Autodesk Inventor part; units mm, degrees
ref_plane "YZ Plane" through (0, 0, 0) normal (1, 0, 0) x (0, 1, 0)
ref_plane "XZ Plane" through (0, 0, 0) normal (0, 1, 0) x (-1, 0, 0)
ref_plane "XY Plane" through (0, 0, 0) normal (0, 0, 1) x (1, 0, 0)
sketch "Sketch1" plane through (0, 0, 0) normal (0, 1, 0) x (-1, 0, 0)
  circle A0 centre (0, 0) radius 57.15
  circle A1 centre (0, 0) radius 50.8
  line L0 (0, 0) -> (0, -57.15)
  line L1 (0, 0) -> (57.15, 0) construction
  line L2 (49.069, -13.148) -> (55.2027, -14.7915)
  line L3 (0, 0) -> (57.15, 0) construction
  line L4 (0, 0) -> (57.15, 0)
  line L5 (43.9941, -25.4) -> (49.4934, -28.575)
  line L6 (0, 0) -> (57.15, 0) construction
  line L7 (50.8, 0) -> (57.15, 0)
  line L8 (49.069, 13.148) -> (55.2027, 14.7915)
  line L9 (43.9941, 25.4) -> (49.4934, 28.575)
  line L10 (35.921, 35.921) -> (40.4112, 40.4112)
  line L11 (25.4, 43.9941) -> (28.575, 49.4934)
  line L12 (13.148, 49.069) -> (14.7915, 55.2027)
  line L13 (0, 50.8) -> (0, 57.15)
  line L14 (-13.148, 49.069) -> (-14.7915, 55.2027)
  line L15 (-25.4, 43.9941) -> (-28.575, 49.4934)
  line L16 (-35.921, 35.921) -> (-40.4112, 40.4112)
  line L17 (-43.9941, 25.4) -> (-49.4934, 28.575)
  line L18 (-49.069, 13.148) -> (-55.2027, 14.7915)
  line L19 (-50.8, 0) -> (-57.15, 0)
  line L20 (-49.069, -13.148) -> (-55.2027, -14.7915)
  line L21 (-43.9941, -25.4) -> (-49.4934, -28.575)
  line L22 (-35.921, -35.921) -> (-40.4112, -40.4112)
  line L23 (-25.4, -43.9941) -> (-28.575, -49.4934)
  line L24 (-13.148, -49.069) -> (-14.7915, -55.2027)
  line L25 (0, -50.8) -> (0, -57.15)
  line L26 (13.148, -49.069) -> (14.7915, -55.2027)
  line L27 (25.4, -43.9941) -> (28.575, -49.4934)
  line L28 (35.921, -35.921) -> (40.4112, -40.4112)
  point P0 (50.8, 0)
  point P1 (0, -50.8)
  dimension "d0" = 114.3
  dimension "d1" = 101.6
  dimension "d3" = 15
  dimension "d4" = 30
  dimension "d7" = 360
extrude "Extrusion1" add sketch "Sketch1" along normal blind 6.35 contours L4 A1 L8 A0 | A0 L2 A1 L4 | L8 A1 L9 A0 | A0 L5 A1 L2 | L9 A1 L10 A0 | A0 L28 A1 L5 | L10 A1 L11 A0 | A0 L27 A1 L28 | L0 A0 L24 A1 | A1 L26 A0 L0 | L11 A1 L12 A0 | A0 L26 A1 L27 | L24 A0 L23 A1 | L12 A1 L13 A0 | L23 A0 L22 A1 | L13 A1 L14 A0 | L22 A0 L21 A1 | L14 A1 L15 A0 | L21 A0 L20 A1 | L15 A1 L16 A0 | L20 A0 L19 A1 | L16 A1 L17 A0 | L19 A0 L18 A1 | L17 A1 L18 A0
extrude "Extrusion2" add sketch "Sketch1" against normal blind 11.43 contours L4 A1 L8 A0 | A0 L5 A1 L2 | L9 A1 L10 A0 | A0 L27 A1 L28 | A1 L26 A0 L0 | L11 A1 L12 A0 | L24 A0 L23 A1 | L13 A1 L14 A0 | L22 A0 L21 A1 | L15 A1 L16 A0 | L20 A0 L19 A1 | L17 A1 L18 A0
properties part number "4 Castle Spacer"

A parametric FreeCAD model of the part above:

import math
import FreeCAD as App
import Part
import Sketcher
Q = App.Units.Quantity

doc = App.newDocument("Part")
params = doc.addObject("Spreadsheet::Sheet", "Params")
for row, (alias, value) in enumerate([
    ("sketch1_diameter", "4 in"),
    ("sketch1_diameter2", "4.5 in"),
    ("pad1_length", "0.25 in"),
    ("sketch2_radius", "2 in"),
    ("sketch2_radius2", "2.25 in"),
    ("pad2_length", "0.45 in"),
], start=1):
    params.set(f"A{row}", alias)
    params.set(f"B{row}", "=" + value)
    params.setAlias(f"B{row}", alias)

body = doc.addObject("PartDesign::Body", "Body")

sketch1 = body.newObject("Sketcher::SketchObject", "Sketch")
sketch1.AttachmentSupport = (doc.getObject("XZ_Plane"), [""])
sketch1.MapMode = "FlatFace"
sketch1.addGeometry([
    Part.Circle(App.Vector(0, 0, 0), App.Vector(0, 0, 1), 57),
    Part.Circle(App.Vector(0, 0, 0), App.Vector(0, 0, 1), 51),
], False)
sketch1.addConstraint([
    Sketcher.Constraint("Coincident", 0, 3, -1, 1),
    Sketcher.Constraint("Coincident", 1, 3, -1, 1),
    Sketcher.Constraint("Diameter", 1, Q("4 in")),
    Sketcher.Constraint("Diameter", 0, Q("4.5 in")),
])
sketch1.setExpression("Constraints[2]", "Params.sketch1_diameter")
sketch1.setExpression("Constraints[3]", "Params.sketch1_diameter2")
pad1 = body.newObject("PartDesign::Pad", "Pad")
pad1.Profile = sketch1
pad1.setExpression("Length", "Params.pad1_length")
pad1.Reversed = True

sketch2 = body.newObject("Sketcher::SketchObject", "Sketch001")
sketch2.AttachmentSupport = (doc.getObject("XZ_Plane"), [""])
sketch2.MapMode = "FlatFace"
sketch2.addGeometry([
    Part.LineSegment(App.Vector(-51, 0, 0), App.Vector(-57, 0, 0)),
    Part.ArcOfCircle(Part.Circle(App.Vector(0, 0, 0), App.Vector(0, 0, 1), 57), math.radians(165), math.radians(180)),
    Part.LineSegment(App.Vector(-55, 15, 0), App.Vector(-49, 13, 0)),
    Part.ArcOfCircle(Part.Circle(App.Vector(0, 0, 0), App.Vector(0, 0, 1), 51), math.radians(165), math.radians(180)),
    Part.ArcOfCircle(Part.Circle(App.Vector(0, 0, 0), App.Vector(0, 0, 1), 57), math.radians(-165), math.radians(-150)),
    Part.LineSegment(App.Vector(-55, -15, 0), App.Vector(-49, -13, 0)),
    Part.ArcOfCircle(Part.Circle(App.Vector(0, 0, 0), App.Vector(0, 0, 1), 51), math.radians(-165), math.radians(-150)),
    Part.LineSegment(App.Vector(-44, -25, 0), App.Vector(-49, -29, 0)),
    Part.LineSegment(App.Vector(-44, 25, 0), App.Vector(-49, 29, 0)),
    Part.ArcOfCircle(Part.Circle(App.Vector(0, 0, 0), App.Vector(0, 0, 1), 57), math.radians(135), math.radians(150)),
    Part.LineSegment(App.Vector(-40, 40, 0), App.Vector(-36, 36, 0)),
    Part.ArcOfCircle(Part.Circle(App.Vector(0, 0, 0), App.Vector(0, 0, 1), 51), math.radians(135), math.radians(150)),
    Part.ArcOfCircle(Part.Circle(App.Vector(0, 0, 0), App.Vector(0, 0, 1), 57), math.radians(-135), math.radians(-120)),
    Part.LineSegment(App.Vector(-40, -40, 0), App.Vector(-36, -36, 0)),
    Part.ArcOfCircle(Part.Circle(App.Vector(0, 0, 0), App.Vector(0, 0, 1), 51), math.radians(-135), math.radians(-120)),
    Part.LineSegment(App.Vector(-25, -44, 0), App.Vector(-29, -49, 0)),
    Part.ArcOfCircle(Part.Circle(App.Vector(0, 0, 0), App.Vector(0, 0, 1), 51), math.radians(-105), math.radians(-90)),
    Part.LineSegment(App.Vector(0, -51, 0), App.Vector(0, -57, 0)),
    Part.ArcOfCircle(Part.Circle(App.Vector(0, 0, 0), App.Vector(0, 0, 1), 57), math.radians(-105), math.radians(-90)),
    Part.LineSegment(App.Vector(-15, -55, 0), App.Vector(-13, -49, 0)),
    Part.LineSegment(App.Vector(-25, 44, 0), App.Vector(-29, 49, 0)),
    Part.ArcOfCircle(Part.Circle(App.Vector(0, 0, 0), App.Vector(0, 0, 1), 57), math.radians(105), math.radians(120)),
    Part.LineSegment(App.Vector(-15, 55, 0), App.Vector(-13, 49, 0)),
    Part.ArcOfCircle(Part.Circle(App.Vector(0, 0, 0), App.Vector(0, 0, 1), 51), math.radians(105), math.radians(120)),
    Part.LineSegment(App.Vector(15, -55, 0), App.Vector(13, -49, 0)),
    Part.ArcOfCircle(Part.Circle(App.Vector(0, 0, 0), App.Vector(0, 0, 1), 51), math.radians(-75), math.radians(-60)),
    Part.LineSegment(App.Vector(25, -44, 0), App.Vector(29, -49, 0)),
    Part.ArcOfCircle(Part.Circle(App.Vector(0, 0, 0), App.Vector(0, 0, 1), 57), math.radians(-75), math.radians(-60)),
    Part.LineSegment(App.Vector(0, 51, 0), App.Vector(0, 57, 0)),
    Part.ArcOfCircle(Part.Circle(App.Vector(0, 0, 0), App.Vector(0, 0, 1), 57), math.radians(75), math.radians(90)),
    Part.LineSegment(App.Vector(15, 55, 0), App.Vector(13, 49, 0)),
    Part.ArcOfCircle(Part.Circle(App.Vector(0, 0, 0), App.Vector(0, 0, 1), 51), math.radians(75), math.radians(90)),
    Part.LineSegment(App.Vector(40, -40, 0), App.Vector(36, -36, 0)),
    Part.ArcOfCircle(Part.Circle(App.Vector(0, 0, 0), App.Vector(0, 0, 1), 51), math.radians(-45), math.radians(-30)),
    Part.LineSegment(App.Vector(44, -25, 0), App.Vector(49, -29, 0)),
    Part.ArcOfCircle(Part.Circle(App.Vector(0, 0, 0), App.Vector(0, 0, 1), 57), math.radians(-45), math.radians(-30)),
    Part.LineSegment(App.Vector(25, 44, 0), App.Vector(29, 49, 0)),
    Part.ArcOfCircle(Part.Circle(App.Vector(0, 0, 0), App.Vector(0, 0, 1), 57), math.radians(45), math.radians(60)),
    Part.LineSegment(App.Vector(40, 40, 0), App.Vector(36, 36, 0)),
    Part.ArcOfCircle(Part.Circle(App.Vector(0, 0, 0), App.Vector(0, 0, 1), 51), math.radians(45), math.radians(60)),
    Part.LineSegment(App.Vector(55, -15, 0), App.Vector(49, -13, 0)),
    Part.ArcOfCircle(Part.Circle(App.Vector(0, 0, 0), App.Vector(0, 0, 1), 51), math.radians(-15), math.radians(0)),
    Part.LineSegment(App.Vector(51, 0, 0), App.Vector(57, 0, 0)),
    Part.ArcOfCircle(Part.Circle(App.Vector(0, 0, 0), App.Vector(0, 0, 1), 57), math.radians(-15), math.radians(0)),
    Part.LineSegment(App.Vector(44, 25, 0), App.Vector(49, 29, 0)),
    Part.ArcOfCircle(Part.Circle(App.Vector(0, 0, 0), App.Vector(0, 0, 1), 57), math.radians(15), math.radians(30)),
    Part.LineSegment(App.Vector(55, 15, 0), App.Vector(49, 13, 0)),
    Part.ArcOfCircle(Part.Circle(App.Vector(0, 0, 0), App.Vector(0, 0, 1), 51), math.radians(15), math.radians(30)),
], False)
sketch2.addConstraint([
    Sketcher.Constraint("Coincident", 0, 2, 1, 2),
    Sketcher.Constraint("Coincident", 1, 1, 2, 1),
    Sketcher.Constraint("Coincident", 2, 2, 3, 1),
    Sketcher.Constraint("Coincident", 3, 2, 0, 1),
    Sketcher.Constraint("Coincident", 4, 1, 5, 1),
    Sketcher.Constraint("Coincident", 5, 2, 6, 1),
    Sketcher.Constraint("Coincident", 6, 2, 7, 1),
    Sketcher.Constraint("Coincident", 7, 2, 4, 2),
    Sketcher.Constraint("Coincident", 8, 2, 9, 2),
    Sketcher.Constraint("Coincident", 9, 1, 10, 1),
    Sketcher.Constraint("Coincident", 10, 2, 11, 1),
    Sketcher.Constraint("Coincident", 11, 2, 8, 1),
    Sketcher.Constraint("Coincident", 12, 1, 13, 1),
    Sketcher.Constraint("Coincident", 13, 2, 14, 1),
    Sketcher.Constraint("Coincident", 14, 2, 15, 1),
    Sketcher.Constraint("Coincident", 15, 2, 12, 2),
    Sketcher.Constraint("Coincident", 16, 2, 17, 1),
    Sketcher.Constraint("Coincident", 17, 2, 18, 2),
    Sketcher.Constraint("Coincident", 18, 1, 19, 1),
    Sketcher.Constraint("Coincident", 19, 2, 16, 1),
    Sketcher.Constraint("Coincident", 20, 2, 21, 2),
    Sketcher.Constraint("Coincident", 21, 1, 22, 1),
    Sketcher.Constraint("Coincident", 22, 2, 23, 1),
    Sketcher.Constraint("Coincident", 23, 2, 20, 1),
    Sketcher.Constraint("Coincident", 24, 2, 25, 1),
    Sketcher.Constraint("Coincident", 25, 2, 26, 1),
    Sketcher.Constraint("Coincident", 26, 2, 27, 2),
    Sketcher.Constraint("Coincident", 27, 1, 24, 1),
    Sketcher.Constraint("Coincident", 28, 2, 29, 2),
    Sketcher.Constraint("Coincident", 29, 1, 30, 1),
    Sketcher.Constraint("Coincident", 30, 2, 31, 1),
    Sketcher.Constraint("Coincident", 31, 2, 28, 1),
    Sketcher.Constraint("Coincident", 32, 2, 33, 1),
    Sketcher.Constraint("Coincident", 33, 2, 34, 1),
    Sketcher.Constraint("Coincident", 34, 2, 35, 2),
    Sketcher.Constraint("Coincident", 35, 1, 32, 1),
    Sketcher.Constraint("Coincident", 36, 2, 37, 2),
    Sketcher.Constraint("Coincident", 37, 1, 38, 1),
    Sketcher.Constraint("Coincident", 38, 2, 39, 1),
    Sketcher.Constraint("Coincident", 39, 2, 36, 1),
    Sketcher.Constraint("Coincident", 40, 2, 41, 1),
    Sketcher.Constraint("Coincident", 41, 2, 42, 1),
    Sketcher.Constraint("Coincident", 42, 2, 43, 2),
    Sketcher.Constraint("Coincident", 43, 1, 40, 1),
    Sketcher.Constraint("Coincident", 44, 2, 45, 2),
    Sketcher.Constraint("Coincident", 45, 1, 46, 1),
    Sketcher.Constraint("Coincident", 46, 2, 47, 1),
    Sketcher.Constraint("Coincident", 47, 2, 44, 1),
    Sketcher.Constraint("Horizontal", 0),
    Sketcher.Constraint("Vertical", 17),
    Sketcher.Constraint("Vertical", 28),
    Sketcher.Constraint("Horizontal", 42),
    Sketcher.Constraint("Coincident", 1, 3, -1, 1),
    Sketcher.Constraint("Coincident", 3, 3, -1, 1),
    Sketcher.Constraint("Coincident", 4, 3, -1, 1),
    Sketcher.Constraint("Coincident", 6, 3, -1, 1),
    Sketcher.Constraint("Coincident", 9, 3, -1, 1),
    Sketcher.Constraint("Coincident", 11, 3, -1, 1),
    Sketcher.Constraint("Coincident", 12, 3, -1, 1),
    Sketcher.Constraint("Coincident", 14, 3, -1, 1),
    Sketcher.Constraint("Coincident", 16, 3, -1, 1),
    Sketcher.Constraint("Coincident", 18, 3, -1, 1),
    Sketcher.Constraint("Coincident", 21, 3, -1, 1),
    Sketcher.Constraint("Coincident", 23, 3, -1, 1),
    Sketcher.Constraint("Coincident", 25, 3, -1, 1),
    Sketcher.Constraint("Coincident", 27, 3, -1, 1),
    Sketcher.Constraint("Coincident", 29, 3, -1, 1),
    Sketcher.Constraint("Coincident", 31, 3, -1, 1),
    Sketcher.Constraint("Coincident", 33, 3, -1, 1),
    Sketcher.Constraint("Coincident", 35, 3, -1, 1),
    Sketcher.Constraint("Coincident", 37, 3, -1, 1),
    Sketcher.Constraint("Coincident", 39, 3, -1, 1),
    Sketcher.Constraint("Coincident", 41, 3, -1, 1),
    Sketcher.Constraint("Coincident", 43, 3, -1, 1),
    Sketcher.Constraint("Coincident", 45, 3, -1, 1),
    Sketcher.Constraint("Coincident", 47, 3, -1, 1),
    Sketcher.Constraint("Equal", 1, 4),
    Sketcher.Constraint("Equal", 3, 6),
    Sketcher.Constraint("Equal", 4, 9),
    Sketcher.Constraint("Equal", 6, 11),
    Sketcher.Constraint("Equal", 9, 12),
    Sketcher.Constraint("Equal", 11, 14),
    Sketcher.Constraint("Equal", 14, 16),
    Sketcher.Constraint("Equal", 12, 18),
    Sketcher.Constraint("Equal", 18, 21),
    Sketcher.Constraint("Equal", 16, 23),
    Sketcher.Constraint("Equal", 23, 25),
    Sketcher.Constraint("Equal", 21, 27),
    Sketcher.Constraint("Equal", 27, 29),
    Sketcher.Constraint("Equal", 25, 31),
    Sketcher.Constraint("Equal", 31, 33),
    Sketcher.Constraint("Equal", 29, 35),
    Sketcher.Constraint("Equal", 35, 37),
    Sketcher.Constraint("Equal", 33, 39),
    Sketcher.Constraint("Equal", 39, 41),
    Sketcher.Constraint("Equal", 37, 43),
    Sketcher.Constraint("Equal", 43, 45),
    Sketcher.Constraint("Equal", 41, 47),
    Sketcher.Constraint("PointOnObject", 0, 2, -1),
    Sketcher.Constraint("PointOnObject", 16, 2, -2),
    Sketcher.Constraint("PointOnObject", 28, 2, -2),
    Sketcher.Constraint("PointOnObject", 41, 2, -1),
    Sketcher.Constraint("Perpendicular", 10, 13),
    Sketcher.Constraint("Perpendicular", 8, 15),
    Sketcher.Constraint("Perpendicular", 2, 19),
    Sketcher.Constraint("Perpendicular", 7, 20),
    Sketcher.Constraint("Perpendicular", 5, 22),
    Sketcher.Constraint("Parallel", 22, 24),
    Sketcher.Constraint("Parallel", 20, 26),
    Sketcher.Constraint("Parallel", 19, 30),
    Sketcher.Constraint("Perpendicular", 13, 32),
    Sketcher.Constraint("Perpendicular", 15, 34),
    Sketcher.Constraint("Perpendicular", 34, 36),
    Sketcher.Constraint("Perpendicular", 32, 38),
    Sketcher.Constraint("Perpendicular", 30, 40),
    Sketcher.Constraint("Perpendicular", 26, 44),
    Sketcher.Constraint("Perpendicular", 24, 46),
    Sketcher.Constraint("Horizontal", 19, 2, 24, 2),
    Sketcher.Constraint("Horizontal", 14, 2, 25, 2),
    Sketcher.Constraint("Horizontal", 15, 2, 26, 2),
    Sketcher.Constraint("Horizontal", 18, 1, 27, 1),
    Sketcher.Constraint("Horizontal", 21, 1, 29, 1),
    Sketcher.Constraint("Horizontal", 13, 2, 32, 2),
    Sketcher.Constraint("Horizontal", 6, 2, 33, 2),
    Sketcher.Constraint("Horizontal", 12, 1, 35, 1),
    Sketcher.Constraint("Horizontal", 20, 2, 36, 2),
    Sketcher.Constraint("Horizontal", 9, 1, 37, 1),
    Sketcher.Constraint("Horizontal", 5, 2, 40, 2),
    Sketcher.Constraint("Horizontal", 8, 2, 44, 2),
    Sketcher.Constraint("Horizontal", 1, 1, 45, 1),
    Sketcher.Constraint("Vertical", 1, 1, 4, 1),
    Sketcher.Constraint("Vertical", 7, 2, 8, 2),
    Sketcher.Constraint("Vertical", 9, 1, 12, 1),
    Sketcher.Constraint("Vertical", 15, 2, 20, 2),
    Sketcher.Constraint("Vertical", 18, 1, 21, 1),
    Sketcher.Constraint("Radius", 3, Q("2 in")),
    Sketcher.Constraint("Radius", 1, Q("2.25 in")),
    Sketcher.Constraint("Angle", 2, Q("-14.9998 deg")),
    Sketcher.Constraint("Angle", 34, Q("-29.9998 deg")),
    Sketcher.Constraint("DistanceY", 6, 2, -1, 1, Q("1 in")),
    Sketcher.Constraint("DistanceX", 14, 2, -1, 1, Q("1 in")),
    Sketcher.Constraint("DistanceX", 9, 1, -1, 1, Q("1.591 in")),
    Sketcher.Constraint("DistanceX", 1, 1, -1, 1, Q("55.2027 mm")),
    Sketcher.Constraint("DistanceX", 18, 1, -1, 1, Q("14.7915 mm")),
])
sketch2.setExpression("Constraints[135]", "Params.sketch2_radius")
sketch2.setExpression("Constraints[136]", "Params.sketch2_radius2")
pad2 = body.newObject("PartDesign::Pad", "Pad001")
pad2.Profile = sketch2
pad2.setExpression("Length", "Params.pad2_length")

doc.recompute()
